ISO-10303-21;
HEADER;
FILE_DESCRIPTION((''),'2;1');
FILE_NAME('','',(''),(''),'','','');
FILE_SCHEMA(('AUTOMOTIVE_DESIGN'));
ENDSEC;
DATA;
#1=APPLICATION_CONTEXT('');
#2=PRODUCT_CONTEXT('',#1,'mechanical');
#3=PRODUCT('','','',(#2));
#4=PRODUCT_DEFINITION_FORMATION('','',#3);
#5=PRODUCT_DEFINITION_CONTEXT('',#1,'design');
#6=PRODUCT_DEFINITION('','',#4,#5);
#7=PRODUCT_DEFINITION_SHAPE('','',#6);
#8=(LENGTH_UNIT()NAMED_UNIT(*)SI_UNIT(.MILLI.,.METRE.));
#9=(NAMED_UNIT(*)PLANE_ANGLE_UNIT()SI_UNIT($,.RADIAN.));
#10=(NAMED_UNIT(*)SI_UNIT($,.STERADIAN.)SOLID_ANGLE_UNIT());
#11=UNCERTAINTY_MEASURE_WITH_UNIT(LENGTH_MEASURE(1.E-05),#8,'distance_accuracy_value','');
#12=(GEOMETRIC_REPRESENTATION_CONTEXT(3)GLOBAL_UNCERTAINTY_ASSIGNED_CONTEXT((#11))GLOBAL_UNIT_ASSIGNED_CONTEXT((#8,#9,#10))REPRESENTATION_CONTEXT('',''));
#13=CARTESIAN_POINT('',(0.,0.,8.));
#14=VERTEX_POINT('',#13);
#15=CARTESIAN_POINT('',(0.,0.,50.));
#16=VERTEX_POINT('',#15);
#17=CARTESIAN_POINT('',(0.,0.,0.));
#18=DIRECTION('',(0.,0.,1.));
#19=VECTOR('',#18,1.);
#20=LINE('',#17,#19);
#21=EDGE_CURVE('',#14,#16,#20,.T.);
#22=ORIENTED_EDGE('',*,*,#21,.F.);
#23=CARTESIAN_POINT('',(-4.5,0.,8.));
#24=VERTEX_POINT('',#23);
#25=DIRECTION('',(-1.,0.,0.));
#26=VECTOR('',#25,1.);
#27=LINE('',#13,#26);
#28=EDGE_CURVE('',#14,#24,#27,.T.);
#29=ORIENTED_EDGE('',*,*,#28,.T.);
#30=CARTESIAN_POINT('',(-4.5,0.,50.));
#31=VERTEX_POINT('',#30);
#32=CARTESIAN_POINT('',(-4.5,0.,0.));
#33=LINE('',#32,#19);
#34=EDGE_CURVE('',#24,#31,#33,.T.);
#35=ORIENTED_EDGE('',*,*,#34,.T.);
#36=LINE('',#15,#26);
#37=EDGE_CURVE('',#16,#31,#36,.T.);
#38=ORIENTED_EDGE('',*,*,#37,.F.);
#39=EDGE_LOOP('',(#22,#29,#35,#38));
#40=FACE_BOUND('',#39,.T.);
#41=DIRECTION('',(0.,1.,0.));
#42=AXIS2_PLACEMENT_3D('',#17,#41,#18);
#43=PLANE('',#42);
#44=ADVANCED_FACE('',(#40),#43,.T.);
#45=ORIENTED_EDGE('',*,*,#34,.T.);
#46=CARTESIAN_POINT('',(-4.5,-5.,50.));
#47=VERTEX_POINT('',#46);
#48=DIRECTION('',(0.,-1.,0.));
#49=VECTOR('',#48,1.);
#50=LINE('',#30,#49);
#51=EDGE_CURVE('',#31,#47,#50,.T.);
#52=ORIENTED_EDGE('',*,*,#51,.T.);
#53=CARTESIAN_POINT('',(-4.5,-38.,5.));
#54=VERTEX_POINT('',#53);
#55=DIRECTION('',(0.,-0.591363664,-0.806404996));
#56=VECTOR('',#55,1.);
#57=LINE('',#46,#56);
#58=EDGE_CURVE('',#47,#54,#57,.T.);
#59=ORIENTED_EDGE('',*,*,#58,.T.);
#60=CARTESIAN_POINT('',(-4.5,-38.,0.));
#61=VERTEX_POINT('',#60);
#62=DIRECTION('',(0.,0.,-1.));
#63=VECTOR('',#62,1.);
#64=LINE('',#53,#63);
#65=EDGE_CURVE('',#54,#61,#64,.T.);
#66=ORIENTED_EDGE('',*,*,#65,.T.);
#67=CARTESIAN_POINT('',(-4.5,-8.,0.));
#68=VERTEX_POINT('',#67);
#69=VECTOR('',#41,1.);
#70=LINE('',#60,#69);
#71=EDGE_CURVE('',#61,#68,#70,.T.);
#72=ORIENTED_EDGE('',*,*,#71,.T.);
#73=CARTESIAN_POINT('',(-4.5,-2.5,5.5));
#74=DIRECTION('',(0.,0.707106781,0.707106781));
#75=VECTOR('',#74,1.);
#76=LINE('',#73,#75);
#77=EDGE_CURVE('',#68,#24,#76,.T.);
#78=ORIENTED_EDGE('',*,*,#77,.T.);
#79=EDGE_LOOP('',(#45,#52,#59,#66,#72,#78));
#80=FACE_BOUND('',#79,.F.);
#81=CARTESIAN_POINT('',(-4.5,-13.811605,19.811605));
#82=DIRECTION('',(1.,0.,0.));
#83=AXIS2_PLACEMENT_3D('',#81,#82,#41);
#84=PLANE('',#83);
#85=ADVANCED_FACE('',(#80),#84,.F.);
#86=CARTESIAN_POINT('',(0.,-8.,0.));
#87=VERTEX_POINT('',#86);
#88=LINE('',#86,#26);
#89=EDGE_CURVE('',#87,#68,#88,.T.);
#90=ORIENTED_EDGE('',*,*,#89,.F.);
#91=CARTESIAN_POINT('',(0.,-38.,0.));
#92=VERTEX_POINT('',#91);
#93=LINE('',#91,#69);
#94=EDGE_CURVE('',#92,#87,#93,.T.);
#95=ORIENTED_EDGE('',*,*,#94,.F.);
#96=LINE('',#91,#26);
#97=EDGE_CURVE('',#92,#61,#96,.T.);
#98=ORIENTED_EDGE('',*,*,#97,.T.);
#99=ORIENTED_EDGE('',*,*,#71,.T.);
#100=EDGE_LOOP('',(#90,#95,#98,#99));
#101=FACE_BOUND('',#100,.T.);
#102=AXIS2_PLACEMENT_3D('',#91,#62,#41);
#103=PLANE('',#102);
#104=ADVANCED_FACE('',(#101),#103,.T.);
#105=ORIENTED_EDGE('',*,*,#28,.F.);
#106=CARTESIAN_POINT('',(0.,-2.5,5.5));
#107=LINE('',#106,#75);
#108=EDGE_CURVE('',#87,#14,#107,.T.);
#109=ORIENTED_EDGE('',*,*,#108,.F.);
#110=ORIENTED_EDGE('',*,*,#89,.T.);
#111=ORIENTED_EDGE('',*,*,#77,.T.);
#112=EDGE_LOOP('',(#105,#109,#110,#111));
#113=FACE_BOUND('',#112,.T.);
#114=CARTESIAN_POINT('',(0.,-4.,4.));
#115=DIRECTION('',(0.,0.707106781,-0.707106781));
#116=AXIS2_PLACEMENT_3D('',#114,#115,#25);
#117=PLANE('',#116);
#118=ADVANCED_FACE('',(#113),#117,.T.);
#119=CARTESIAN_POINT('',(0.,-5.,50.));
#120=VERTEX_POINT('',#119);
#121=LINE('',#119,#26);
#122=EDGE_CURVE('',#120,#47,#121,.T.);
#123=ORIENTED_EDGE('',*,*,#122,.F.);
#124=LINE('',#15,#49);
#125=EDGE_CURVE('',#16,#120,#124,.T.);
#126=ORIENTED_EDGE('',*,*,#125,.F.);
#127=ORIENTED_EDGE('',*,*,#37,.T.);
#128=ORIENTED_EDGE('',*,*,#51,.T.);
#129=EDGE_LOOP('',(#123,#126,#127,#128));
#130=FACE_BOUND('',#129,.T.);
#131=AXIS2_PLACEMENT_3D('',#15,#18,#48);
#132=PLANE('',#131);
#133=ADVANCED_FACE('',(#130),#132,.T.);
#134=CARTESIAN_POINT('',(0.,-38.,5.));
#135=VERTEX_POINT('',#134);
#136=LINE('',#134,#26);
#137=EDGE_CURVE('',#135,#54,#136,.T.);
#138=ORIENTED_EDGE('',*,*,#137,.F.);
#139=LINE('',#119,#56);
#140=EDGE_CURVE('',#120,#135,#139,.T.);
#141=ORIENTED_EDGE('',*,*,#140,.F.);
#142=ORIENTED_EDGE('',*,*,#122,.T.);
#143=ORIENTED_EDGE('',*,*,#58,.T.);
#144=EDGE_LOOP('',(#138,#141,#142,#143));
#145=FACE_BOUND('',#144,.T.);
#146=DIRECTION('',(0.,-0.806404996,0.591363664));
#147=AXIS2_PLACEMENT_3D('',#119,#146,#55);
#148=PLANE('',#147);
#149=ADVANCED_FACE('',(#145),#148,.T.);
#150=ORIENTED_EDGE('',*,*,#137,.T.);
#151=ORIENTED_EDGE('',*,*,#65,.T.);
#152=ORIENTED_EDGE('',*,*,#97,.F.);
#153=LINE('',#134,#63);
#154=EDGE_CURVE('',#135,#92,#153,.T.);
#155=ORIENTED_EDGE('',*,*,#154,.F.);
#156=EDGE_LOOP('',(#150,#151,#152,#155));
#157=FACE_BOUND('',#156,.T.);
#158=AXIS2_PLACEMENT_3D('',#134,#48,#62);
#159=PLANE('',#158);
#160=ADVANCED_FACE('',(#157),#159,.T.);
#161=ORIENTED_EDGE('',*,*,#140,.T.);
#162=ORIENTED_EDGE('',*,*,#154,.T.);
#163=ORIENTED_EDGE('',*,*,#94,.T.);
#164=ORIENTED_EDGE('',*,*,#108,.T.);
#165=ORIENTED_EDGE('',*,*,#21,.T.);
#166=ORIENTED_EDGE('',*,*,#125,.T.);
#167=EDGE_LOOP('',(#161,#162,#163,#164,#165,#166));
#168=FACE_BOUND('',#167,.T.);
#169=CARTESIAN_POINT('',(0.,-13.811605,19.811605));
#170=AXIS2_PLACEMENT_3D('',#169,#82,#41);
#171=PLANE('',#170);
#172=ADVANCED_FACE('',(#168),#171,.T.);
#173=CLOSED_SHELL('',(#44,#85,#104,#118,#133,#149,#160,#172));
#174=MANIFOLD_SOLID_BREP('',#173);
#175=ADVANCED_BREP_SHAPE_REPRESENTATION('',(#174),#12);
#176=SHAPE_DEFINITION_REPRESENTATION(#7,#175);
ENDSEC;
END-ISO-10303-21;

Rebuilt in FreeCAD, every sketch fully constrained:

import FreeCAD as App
import Part
import Sketcher
Q = App.Units.Quantity


def edges_at(feature, points):
    """Names of the edges that pass closest to the given points."""
    edges = feature.Shape.Edges
    near = lambda p: min(range(len(edges)), key=lambda i: edges[i].distToShape(Part.Vertex(*p))[0])
    return sorted({f"Edge{near(p) + 1}" for p in points})


def add_polygon(sketch, points):
    """Adds a closed chain of lines whose ends are joined by coincident constraints."""
    first, n = sketch.GeometryCount, len(points)
    for a, b in zip(points, points[1:] + points[:1]):
        sketch.addGeometry(Part.LineSegment(App.Vector(*a, 0), App.Vector(*b, 0)), False)
    for i in range(n):
        sketch.addConstraint(Sketcher.Constraint("Coincident", first + i, 2, first + (i + 1) % n, 1))

doc = App.newDocument("Part")
params = doc.addObject("Spreadsheet::Sheet", "Params")
for row, (alias, value) in enumerate([
    ("sketch1_width", "38 mm"),
    ("sketch1_width2", "5 mm"),
    ("sketch1_height", "50 mm"),
    ("pad1_length", "4.5 mm"),
    ("chamfer_size", "8 mm"),
], start=1):
    params.set(f"A{row}", alias)
    params.set(f"B{row}", "=" + value)
    params.setAlias(f"B{row}", alias)

body = doc.addObject("PartDesign::Body", "Body")

# Sketch on YZ plane
sketch1 = body.newObject("Sketcher::SketchObject", "Sketch")
sketch1.AttachmentSupport = (doc.getObject("YZ_Plane"), [""])
sketch1.MapMode = "FlatFace"
add_polygon(sketch1, [(-38, 0), (0, 0), (0, 50), (-5, 50), (-38, 5)])  # lines 0-4
sketch1.addConstraint(Sketcher.Constraint("Horizontal", 0))
sketch1.addConstraint(Sketcher.Constraint("Vertical", 1))
sketch1.addConstraint(Sketcher.Constraint("Horizontal", 2))
sketch1.addConstraint(Sketcher.Constraint("Vertical", 4))
sketch1.addConstraint(Sketcher.Constraint("Coincident", 0, 2, -1, 1))
sketch1.addConstraint(Sketcher.Constraint("Equal", 2, 4))
sketch1.addConstraint(Sketcher.Constraint("DistanceX", 0, 1, 0, 2, Q("38 mm")))
sketch1.addConstraint(Sketcher.Constraint("DistanceX", 2, 2, 2, 1, Q("5 mm")))
sketch1.addConstraint(Sketcher.Constraint("DistanceY", 1, 1, 1, 2, Q("50 mm")))
sketch1.setExpression("Constraints[11]", "Params.sketch1_width")
sketch1.setExpression("Constraints[12]", "Params.sketch1_width2")
sketch1.setExpression("Constraints[13]", "Params.sketch1_height")
pad1 = body.newObject("PartDesign::Pad", "Pad")
pad1.Profile = sketch1
pad1.setExpression("Length", "Params.pad1_length")
pad1.Reversed = True
doc.recompute()

chamfer = body.newObject("PartDesign::Chamfer", "Chamfer")
chamfer.Base = (pad1, edges_at(pad1, [(-2.25, 0, 0)]))
chamfer.setExpression("Size", "Params.chamfer_size")

doc.recompute()
